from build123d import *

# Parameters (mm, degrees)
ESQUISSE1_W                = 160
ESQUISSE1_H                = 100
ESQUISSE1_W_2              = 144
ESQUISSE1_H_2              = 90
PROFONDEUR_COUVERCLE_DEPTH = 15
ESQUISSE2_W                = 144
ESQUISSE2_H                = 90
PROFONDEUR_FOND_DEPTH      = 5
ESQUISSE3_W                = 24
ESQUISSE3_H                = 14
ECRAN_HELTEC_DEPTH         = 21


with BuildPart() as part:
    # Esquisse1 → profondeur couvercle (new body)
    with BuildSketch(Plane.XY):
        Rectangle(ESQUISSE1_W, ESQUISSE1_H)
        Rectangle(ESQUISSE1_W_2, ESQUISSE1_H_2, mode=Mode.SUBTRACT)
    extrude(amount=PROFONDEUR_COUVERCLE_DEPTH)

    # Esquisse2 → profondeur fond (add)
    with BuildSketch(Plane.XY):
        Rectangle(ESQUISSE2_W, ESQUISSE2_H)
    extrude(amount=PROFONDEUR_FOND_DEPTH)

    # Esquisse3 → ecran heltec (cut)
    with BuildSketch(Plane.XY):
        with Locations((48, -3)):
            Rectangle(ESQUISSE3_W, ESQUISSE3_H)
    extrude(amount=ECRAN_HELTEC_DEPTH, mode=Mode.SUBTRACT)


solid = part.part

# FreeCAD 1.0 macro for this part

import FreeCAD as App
import Part
import Sketcher

doc = App.newDocument("Part")
params = doc.addObject("Spreadsheet::Sheet", "Params")
for row, (alias, value) in enumerate([
    ("sketch1_width", "160 mm"),
    ("sketch1_width2", "144 mm"),
    ("sketch1_height", "100 mm"),
    ("sketch1_height2", "90 mm"),
    ("pad1_length", "15 mm"),
    ("sketch2_width", "144 mm"),
    ("sketch2_height", "90 mm"),
    ("pad2_length", "5 mm"),
    ("sketch3_width", "24 mm"),
    ("sketch3_height", "14 mm"),
    ("pocket1_length", "21 mm"),
], start=1):
    params.set(f"A{row}", alias)
    params.set(f"B{row}", "=" + value)
    params.setAlias(f"B{row}", alias)

body = doc.addObject("PartDesign::Body", "Body")

sketch1 = body.newObject("Sketcher::SketchObject", "Sketch")
sketch1.AttachmentSupport = (doc.getObject("XY_Plane"), [""])
sketch1.MapMode = "FlatFace"
sketch1.addGeometry([
    Part.LineSegment(App.Vector(-80, 50, 0), App.Vector(-80, -50, 0)),
    Part.LineSegment(App.Vector(-80, -50, 0), App.Vector(80, -50, 0)),
    Part.LineSegment(App.Vector(80, -50, 0), App.Vector(80, 50, 0)),
    Part.LineSegment(App.Vector(80, 50, 0), App.Vector(-80, 50, 0)),
    Part.LineSegment(App.Vector(72, -45, 0), App.Vector(-72, -45, 0)),
    Part.LineSegment(App.Vector(-72, -45, 0), App.Vector(-72, 45, 0)),
    Part.LineSegment(App.Vector(-72, 45, 0), App.Vector(72, 45, 0)),
    Part.LineSegment(App.Vector(72, 45, 0), App.Vector(72, -45, 0)),
], False)
sketch1.addConstraint([
    Sketcher.Constraint("Coincident", 0, 2, 1, 1),
    Sketcher.Constraint("Coincident", 1, 2, 2, 1),
    Sketcher.Constraint("Coincident", 2, 2, 3, 1),
    Sketcher.Constraint("Coincident", 3, 2, 0, 1),
    Sketcher.Constraint("Coincident", 4, 2, 5, 1),
    Sketcher.Constraint("Coincident", 5, 2, 6, 1),
    Sketcher.Constraint("Coincident", 6, 2, 7, 1),
    Sketcher.Constraint("Coincident", 7, 2, 4, 1),
    Sketcher.Constraint("Vertical", 0),
    Sketcher.Constraint("Horizontal", 1),
    Sketcher.Constraint("Vertical", 2),
    Sketcher.Constraint("Horizontal", 3),
    Sketcher.Constraint("Horizontal", 4),
    Sketcher.Constraint("Vertical", 5),
    Sketcher.Constraint("Horizontal", 6),
    Sketcher.Constraint("Vertical", 7),
    Sketcher.Constraint("Symmetric", 0, 2, 2, 2, -1, 1),
    Sketcher.Constraint("Symmetric", 4, 2, 6, 2, -1, 1),
    Sketcher.Constraint("DistanceX", 1, 1, 1, 2, 160.0),
    Sketcher.Constraint("DistanceX", 4, 2, 4, 1, 144.0),
    Sketcher.Constraint("DistanceY", 0, 2, 0, 1, 100.0),
    Sketcher.Constraint("DistanceY", 5, 1, 5, 2, 90.0),
])
sketch1.setExpression("Constraints[18]", "Params.sketch1_width")
sketch1.setExpression("Constraints[19]", "Params.sketch1_width2")
sketch1.setExpression("Constraints[20]", "Params.sketch1_height")
sketch1.setExpression("Constraints[21]", "Params.sketch1_height2")
pad1 = body.newObject("PartDesign::Pad", "Pad")
pad1.Profile = sketch1
pad1.setExpression("Length", "Params.pad1_length")

sketch2 = body.newObject("Sketcher::SketchObject", "Sketch001")
sketch2.AttachmentSupport = (doc.getObject("XY_Plane"), [""])
sketch2.MapMode = "FlatFace"
sketch2.addGeometry([
    Part.LineSegment(App.Vector(-72, 45, 0), App.Vector(-72, -45, 0)),
    Part.LineSegment(App.Vector(-72, -45, 0), App.Vector(72, -45, 0)),
    Part.LineSegment(App.Vector(72, -45, 0), App.Vector(72, 45, 0)),
    Part.LineSegment(App.Vector(72, 45, 0), App.Vector(-72, 45, 0)),
], False)
sketch2.addConstraint([
    Sketcher.Constraint("Coincident", 0, 2, 1, 1),
    Sketcher.Constraint("Coincident", 1, 2, 2, 1),
    Sketcher.Constraint("Coincident", 2, 2, 3, 1),
    Sketcher.Constraint("Coincident", 3, 2, 0, 1),
    Sketcher.Constraint("Vertical", 0),
    Sketcher.Constraint("Horizontal", 1),
    Sketcher.Constraint("Vertical", 2),
    Sketcher.Constraint("Horizontal", 3),
    Sketcher.Constraint("Symmetric", 0, 2, 2, 2, -1, 1),
    Sketcher.Constraint("DistanceX", 1, 1, 1, 2, 144.0),
    Sketcher.Constraint("DistanceY", 0, 2, 0, 1, 90.0),
])
sketch2.setExpression("Constraints[9]", "Params.sketch2_width")
sketch2.setExpression("Constraints[10]", "Params.sketch2_height")
pad2 = body.newObject("PartDesign::Pad", "Pad001")
pad2.Profile = sketch2
pad2.setExpression("Length", "Params.pad2_length")

sketch3 = body.newObject("Sketcher::SketchObject", "Sketch002")
sketch3.AttachmentSupport = (doc.getObject("XY_Plane"), [""])
sketch3.MapMode = "FlatFace"
sketch3.addGeometry([
    Part.LineSegment(App.Vector(36, 4, 0), App.Vector(36, -10, 0)),
    Part.LineSegment(App.Vector(36, -10, 0), App.Vector(60, -10, 0)),
    Part.LineSegment(App.Vector(60, -10, 0), App.Vector(60, 4, 0)),
    Part.LineSegment(App.Vector(60, 4, 0), App.Vector(36, 4, 0)),
], False)
sketch3.addConstraint([
    Sketcher.Constraint("Coincident", 0, 2, 1, 1),
    Sketcher.Constraint("Coincident", 1, 2, 2, 1),
    Sketcher.Constraint("Coincident", 2, 2, 3, 1),
    Sketcher.Constraint("Coincident", 3, 2, 0, 1),
    Sketcher.Constraint("Vertical", 0),
    Sketcher.Constraint("Horizontal", 1),
    Sketcher.Constraint("Vertical", 2),
    Sketcher.Constraint("Horizontal", 3),
    Sketcher.Constraint("DistanceX", 1, 1, 1, 2, 24.0),
    Sketcher.Constraint("DistanceY", 0, 2, 0, 1, 14.0),
    Sketcher.Constraint("DistanceX", -1, 1, 0, 2, 36.0),
    Sketcher.Constraint("DistanceY", 0, 2, -1, 1, 10.0),
])
sketch3.setExpression("Constraints[8]", "Params.sketch3_width")
sketch3.setExpression("Constraints[9]", "Params.sketch3_height")
pocket1 = body.newObject("PartDesign::Pocket", "Pocket")
pocket1.Profile = sketch3
pocket1.setExpression("Length", "Params.pocket1_length")
pocket1.Reversed = True

doc.recompute()
